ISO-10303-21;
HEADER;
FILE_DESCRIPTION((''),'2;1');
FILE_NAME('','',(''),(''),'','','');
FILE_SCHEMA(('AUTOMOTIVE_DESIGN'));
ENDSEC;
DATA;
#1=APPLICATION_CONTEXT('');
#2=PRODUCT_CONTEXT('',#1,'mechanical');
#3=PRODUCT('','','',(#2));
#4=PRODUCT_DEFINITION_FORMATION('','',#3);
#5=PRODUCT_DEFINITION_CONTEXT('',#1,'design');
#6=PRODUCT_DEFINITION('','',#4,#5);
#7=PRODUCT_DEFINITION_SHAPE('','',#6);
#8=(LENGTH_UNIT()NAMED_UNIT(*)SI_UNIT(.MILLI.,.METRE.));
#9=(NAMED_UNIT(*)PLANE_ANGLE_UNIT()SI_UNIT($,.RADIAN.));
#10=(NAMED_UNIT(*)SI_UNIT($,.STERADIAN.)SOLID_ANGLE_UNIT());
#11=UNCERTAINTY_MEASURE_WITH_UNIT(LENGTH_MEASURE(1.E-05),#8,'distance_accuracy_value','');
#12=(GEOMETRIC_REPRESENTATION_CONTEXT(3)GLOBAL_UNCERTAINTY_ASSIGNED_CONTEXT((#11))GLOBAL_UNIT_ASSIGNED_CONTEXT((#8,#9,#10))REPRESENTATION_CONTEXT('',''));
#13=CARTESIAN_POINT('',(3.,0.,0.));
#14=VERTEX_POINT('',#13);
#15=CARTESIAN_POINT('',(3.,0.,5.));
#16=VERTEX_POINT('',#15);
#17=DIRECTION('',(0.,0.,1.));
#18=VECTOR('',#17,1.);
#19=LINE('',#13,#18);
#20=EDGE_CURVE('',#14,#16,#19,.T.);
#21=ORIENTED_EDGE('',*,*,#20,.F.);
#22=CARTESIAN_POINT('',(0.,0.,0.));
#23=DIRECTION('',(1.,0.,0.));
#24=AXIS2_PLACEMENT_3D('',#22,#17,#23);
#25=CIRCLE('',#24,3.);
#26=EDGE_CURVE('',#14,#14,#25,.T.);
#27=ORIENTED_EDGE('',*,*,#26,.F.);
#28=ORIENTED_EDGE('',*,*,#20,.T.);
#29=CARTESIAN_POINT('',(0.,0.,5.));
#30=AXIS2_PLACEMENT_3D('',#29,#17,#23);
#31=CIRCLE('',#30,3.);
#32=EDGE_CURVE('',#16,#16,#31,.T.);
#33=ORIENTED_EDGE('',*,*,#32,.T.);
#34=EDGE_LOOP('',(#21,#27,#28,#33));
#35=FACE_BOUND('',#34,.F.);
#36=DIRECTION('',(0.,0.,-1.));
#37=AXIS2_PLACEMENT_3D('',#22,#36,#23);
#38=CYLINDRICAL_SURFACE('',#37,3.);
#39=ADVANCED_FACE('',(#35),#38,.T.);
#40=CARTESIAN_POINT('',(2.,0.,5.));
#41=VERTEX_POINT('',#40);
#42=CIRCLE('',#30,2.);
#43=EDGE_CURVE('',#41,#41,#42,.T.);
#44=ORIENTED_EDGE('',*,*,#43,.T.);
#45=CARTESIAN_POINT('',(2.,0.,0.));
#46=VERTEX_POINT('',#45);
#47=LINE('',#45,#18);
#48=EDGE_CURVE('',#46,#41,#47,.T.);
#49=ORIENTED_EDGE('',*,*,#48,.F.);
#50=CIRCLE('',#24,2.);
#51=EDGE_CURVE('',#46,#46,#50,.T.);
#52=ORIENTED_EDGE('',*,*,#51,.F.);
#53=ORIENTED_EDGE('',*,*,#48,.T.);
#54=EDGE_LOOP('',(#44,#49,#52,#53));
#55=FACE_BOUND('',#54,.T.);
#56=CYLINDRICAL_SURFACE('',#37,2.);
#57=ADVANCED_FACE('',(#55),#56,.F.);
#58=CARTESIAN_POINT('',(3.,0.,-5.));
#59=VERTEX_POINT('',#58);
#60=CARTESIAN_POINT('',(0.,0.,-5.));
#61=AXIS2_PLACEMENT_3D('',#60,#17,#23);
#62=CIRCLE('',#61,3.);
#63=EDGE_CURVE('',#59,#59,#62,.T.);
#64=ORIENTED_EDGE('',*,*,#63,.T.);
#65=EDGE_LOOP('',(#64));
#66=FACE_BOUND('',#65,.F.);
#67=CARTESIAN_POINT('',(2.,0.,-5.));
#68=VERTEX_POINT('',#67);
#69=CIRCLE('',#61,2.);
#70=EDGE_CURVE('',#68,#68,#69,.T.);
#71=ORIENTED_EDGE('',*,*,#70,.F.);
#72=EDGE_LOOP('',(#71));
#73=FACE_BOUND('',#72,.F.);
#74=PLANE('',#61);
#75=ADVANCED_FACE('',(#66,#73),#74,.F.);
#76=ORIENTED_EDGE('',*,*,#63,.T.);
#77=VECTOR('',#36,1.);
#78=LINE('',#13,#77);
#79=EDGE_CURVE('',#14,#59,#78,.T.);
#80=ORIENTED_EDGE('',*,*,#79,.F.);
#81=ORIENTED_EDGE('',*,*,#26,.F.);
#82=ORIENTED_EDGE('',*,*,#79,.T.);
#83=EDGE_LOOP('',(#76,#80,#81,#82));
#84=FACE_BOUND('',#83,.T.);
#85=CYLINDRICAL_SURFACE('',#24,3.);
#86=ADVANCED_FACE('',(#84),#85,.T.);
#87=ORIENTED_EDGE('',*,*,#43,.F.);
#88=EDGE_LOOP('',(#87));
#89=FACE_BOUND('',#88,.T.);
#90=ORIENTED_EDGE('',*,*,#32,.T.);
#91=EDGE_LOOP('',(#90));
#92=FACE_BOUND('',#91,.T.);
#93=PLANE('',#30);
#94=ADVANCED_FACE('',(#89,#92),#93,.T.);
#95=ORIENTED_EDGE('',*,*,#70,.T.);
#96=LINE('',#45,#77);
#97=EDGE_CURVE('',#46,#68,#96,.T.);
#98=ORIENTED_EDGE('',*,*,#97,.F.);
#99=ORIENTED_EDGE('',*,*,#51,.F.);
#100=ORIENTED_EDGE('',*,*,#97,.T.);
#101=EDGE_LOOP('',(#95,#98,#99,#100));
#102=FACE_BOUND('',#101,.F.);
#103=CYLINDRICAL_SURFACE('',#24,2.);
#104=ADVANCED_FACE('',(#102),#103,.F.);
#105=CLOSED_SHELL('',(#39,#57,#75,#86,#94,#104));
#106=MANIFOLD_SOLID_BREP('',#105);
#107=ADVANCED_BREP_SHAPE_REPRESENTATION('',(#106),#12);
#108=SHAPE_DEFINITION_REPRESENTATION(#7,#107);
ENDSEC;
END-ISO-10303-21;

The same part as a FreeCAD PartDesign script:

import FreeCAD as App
import Part
import Sketcher
Q = App.Units.Quantity

doc = App.newDocument("Part")
body = doc.addObject("PartDesign::Body", "Body")

# Sketch on XY plane
sketch1 = body.newObject("Sketcher::SketchObject", "Sketch")
sketch1.AttachmentSupport = (doc.getObject("XY_Plane"), [""])
sketch1.MapMode = "FlatFace"
sketch1.addGeometry(Part.Circle(App.Vector(0, 0, 0), App.Vector(0, 0, 1), 3), False)
sketch1.addGeometry(Part.Circle(App.Vector(0, 0, 0), App.Vector(0, 0, 1), 2), False)
sketch1.addConstraint(Sketcher.Constraint("Coincident", 0, 3, -1, 1))
sketch1.addConstraint(Sketcher.Constraint("Coincident", 1, 3, -1, 1))
sketch1.addConstraint(Sketcher.Constraint("Diameter", 0, Q("6 mm")))
sketch1.addConstraint(Sketcher.Constraint("Diameter", 1, Q("4 mm")))
pad1 = body.newObject("PartDesign::Pad", "Pad")
pad1.Profile = sketch1
pad1.Length = 10
pad1.Midplane = True

doc.recompute()
